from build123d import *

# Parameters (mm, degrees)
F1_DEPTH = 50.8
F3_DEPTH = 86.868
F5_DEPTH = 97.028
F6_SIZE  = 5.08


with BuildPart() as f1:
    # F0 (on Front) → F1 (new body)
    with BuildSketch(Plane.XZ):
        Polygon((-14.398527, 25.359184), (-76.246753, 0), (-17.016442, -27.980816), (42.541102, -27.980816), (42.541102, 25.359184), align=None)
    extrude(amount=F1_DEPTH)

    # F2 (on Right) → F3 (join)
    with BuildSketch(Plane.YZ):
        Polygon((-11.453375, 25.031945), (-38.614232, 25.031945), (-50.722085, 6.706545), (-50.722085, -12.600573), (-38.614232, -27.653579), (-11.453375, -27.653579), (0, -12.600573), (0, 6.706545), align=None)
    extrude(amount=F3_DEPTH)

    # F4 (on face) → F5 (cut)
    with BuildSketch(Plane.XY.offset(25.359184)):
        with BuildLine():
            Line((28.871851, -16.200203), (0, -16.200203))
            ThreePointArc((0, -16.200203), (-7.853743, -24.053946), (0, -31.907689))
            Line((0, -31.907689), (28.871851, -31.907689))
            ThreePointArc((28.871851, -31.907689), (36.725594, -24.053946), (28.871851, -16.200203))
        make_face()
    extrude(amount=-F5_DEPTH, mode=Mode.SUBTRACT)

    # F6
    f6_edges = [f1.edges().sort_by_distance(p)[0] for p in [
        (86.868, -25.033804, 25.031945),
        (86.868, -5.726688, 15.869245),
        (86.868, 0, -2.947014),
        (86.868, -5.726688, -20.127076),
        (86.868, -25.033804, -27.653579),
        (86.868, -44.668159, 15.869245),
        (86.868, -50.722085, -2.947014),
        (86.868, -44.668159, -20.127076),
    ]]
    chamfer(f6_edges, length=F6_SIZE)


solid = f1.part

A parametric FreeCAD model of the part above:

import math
import FreeCAD as App
import Part
import Sketcher

V = App.Vector
Q = App.Units.Quantity


def edges_at(feature, points):
    """Names of the edges that pass closest to the given points."""
    edges = feature.Shape.Edges
    near = lambda p: min(range(len(edges)), key=lambda i: edges[i].distToShape(Part.Vertex(*p))[0])
    return sorted({f"Edge{near(p) + 1}" for p in points})

doc = App.newDocument("Part")
params = doc.addObject("Spreadsheet::Sheet", "Params")
for row, (alias, value) in enumerate([
    ("sketch1_height", "2.1 in"),
    ("pad1_length", "2 in"),
    ("pad2_length", "3.42 in"),
    ("pocket1_length", "3.82 in"),
    ("chamfer_size", "0.2 in"),
], start=1):
    params.set(f"A{row}", alias)
    params.set(f"B{row}", "=" + value)
    params.setAlias(f"B{row}", alias)

body = doc.addObject("PartDesign::Body", "Body")

# Sketch on XZ plane
sketch1 = body.newObject("Sketcher::SketchObject", "Sketch")
sketch1.AttachmentSupport = (doc.getObject("XZ_Plane"), [""])
sketch1.MapMode = "FlatFace"
sketch1.addGeometry(Part.LineSegment(V(-14, 25, 0), V(-76, 0, 0)), False)
sketch1.addGeometry(Part.LineSegment(V(-76, 0, 0), V(-17, -28, 0)), False)
sketch1.addGeometry(Part.LineSegment(V(-17, -28, 0), V(43, -28, 0)), False)
sketch1.addGeometry(Part.LineSegment(V(43, -28, 0), V(43, 25, 0)), False)
sketch1.addGeometry(Part.LineSegment(V(43, 25, 0), V(-14, 25, 0)), False)
sketch1.addConstraint(Sketcher.Constraint("Coincident", 0, 2, 1, 1))
sketch1.addConstraint(Sketcher.Constraint("Coincident", 1, 2, 2, 1))
sketch1.addConstraint(Sketcher.Constraint("Coincident", 2, 2, 3, 1))
sketch1.addConstraint(Sketcher.Constraint("Coincident", 3, 2, 4, 1))
sketch1.addConstraint(Sketcher.Constraint("Coincident", 4, 2, 0, 1))
sketch1.addConstraint(Sketcher.Constraint("Horizontal", 2))
sketch1.addConstraint(Sketcher.Constraint("Vertical", 3))
sketch1.addConstraint(Sketcher.Constraint("Horizontal", 4))
sketch1.addConstraint(Sketcher.Constraint("PointOnObject", 0, 2, -1))
sketch1.addConstraint(Sketcher.Constraint("DistanceY", 3, 1, 3, 2, Q("2.1 in")))
sketch1.addConstraint(Sketcher.Constraint("DistanceX", 4, 2, 4, 1, 56.939629))
sketch1.addConstraint(Sketcher.Constraint("Distance", 0, 66.845279))
sketch1.addConstraint(Sketcher.Constraint("DistanceX", 2, 1, 2, 2, 59.557544))
sketch1.addConstraint(Sketcher.Constraint("DistanceX", 0, 2, 1, 2, 59.230311))
sketch1.addConstraint(Sketcher.Constraint("DistanceX", 0, 2, -1, 1, 76.246753))
sketch1.setExpression("Constraints[9]", "Params.sketch1_height")
pad1 = body.newObject("PartDesign::Pad", "Pad")
pad1.Profile = sketch1
pad1.setExpression("Length", "Params.pad1_length")

# Sketch on YZ plane
sketch2 = body.newObject("Sketcher::SketchObject", "Sketch001")
sketch2.AttachmentSupport = (doc.getObject("YZ_Plane"), [""])
sketch2.MapMode = "FlatFace"
sketch2.addGeometry(Part.LineSegment(V(-11, 25, 0), V(-39, 25, 0)), False)
sketch2.addGeometry(Part.LineSegment(V(-39, 25, 0), V(-51, 7, 0)), False)
sketch2.addGeometry(Part.LineSegment(V(-51, 7, 0), V(-51, -13, 0)), False)
sketch2.addGeometry(Part.LineSegment(V(-51, -13, 0), V(-39, -28, 0)), False)
sketch2.addGeometry(Part.LineSegment(V(-39, -28, 0), V(-11, -28, 0)), False)
sketch2.addGeometry(Part.LineSegment(V(-11, -28, 0), V(0, -13, 0)), False)
sketch2.addGeometry(Part.LineSegment(V(0, -13, 0), V(0, 7, 0)), False)
sketch2.addGeometry(Part.LineSegment(V(0, 7, 0), V(-11, 25, 0)), False)
sketch2.addConstraint(Sketcher.Constraint("Coincident", 0, 2, 1, 1))
sketch2.addConstraint(Sketcher.Constraint("Coincident", 1, 2, 2, 1))
sketch2.addConstraint(Sketcher.Constraint("Coincident", 2, 2, 3, 1))
sketch2.addConstraint(Sketcher.Constraint("Coincident", 3, 2, 4, 1))
sketch2.addConstraint(Sketcher.Constraint("Coincident", 4, 2, 5, 1))
sketch2.addConstraint(Sketcher.Constraint("Coincident", 5, 2, 6, 1))
sketch2.addConstraint(Sketcher.Constraint("Coincident", 6, 2, 7, 1))
sketch2.addConstraint(Sketcher.Constraint("Coincident", 7, 2, 0, 1))
sketch2.addConstraint(Sketcher.Constraint("Horizontal", 0))
sketch2.addConstraint(Sketcher.Constraint("Vertical", 2))
sketch2.addConstraint(Sketcher.Constraint("Horizontal", 4))
sketch2.addConstraint(Sketcher.Constraint("Vertical", 6))
sketch2.addConstraint(Sketcher.Constraint("PointOnObject", 5, 2, -2))
sketch2.addConstraint(Sketcher.Constraint("Horizontal", 2, 2, 5, 2))
sketch2.addConstraint(Sketcher.Constraint("Horizontal", 1, 2, 6, 2))
sketch2.addConstraint(Sketcher.Constraint("Vertical", 0, 2, 3, 2))
sketch2.addConstraint(Sketcher.Constraint("Vertical", 4, 2, 7, 2))
sketch2.addConstraint(Sketcher.Constraint("DistanceY", 2, 2, 2, 1, 19.307118))
sketch2.addConstraint(Sketcher.Constraint("DistanceY", 1, 2, 0, 2, 18.3254))
sketch2.addConstraint(Sketcher.Constraint("Distance", 1, 21.96407))
sketch2.addConstraint(Sketcher.Constraint("DistanceX", 0, 2, 0, 1, 27.160857))
sketch2.addConstraint(Sketcher.Constraint("DistanceY", 3, 2, -1, 1, 27.653579))
sketch2.addConstraint(Sketcher.Constraint("Distance", 3, 19.318206))
sketch2.addConstraint(Sketcher.Constraint("Distance", 5, 18.914883))
pad2 = body.newObject("PartDesign::Pad", "Pad001")
pad2.Profile = sketch2
pad2.setExpression("Length", "Params.pad2_length")

# Sketch on XY plane
sketch3 = body.newObject("Sketcher::SketchObject", "Sketch002")
sketch3.AttachmentSupport = (doc.getObject("XY_Plane"), [""])
sketch3.MapMode = "FlatFace"
sketch3.AttachmentOffset = App.Placement(V(0, 0, 25.359184), App.Rotation())
sketch3.addGeometry(Part.LineSegment(V(29, -16, 0), V(0, -16, 0)), False)
sketch3.addGeometry(Part.ArcOfCircle(Part.Circle(V(0, -24, 0), V(0, 0, 1), 8), math.radians(90), math.radians(270)), False)
sketch3.addGeometry(Part.LineSegment(V(0, -32, 0), V(29, -32, 0)), False)
sketch3.addGeometry(Part.ArcOfCircle(Part.Circle(V(29, -24, 0), V(0, 0, 1), 8), math.radians(-90), math.radians(90)), False)
sketch3.addConstraint(Sketcher.Constraint("Tangent", 0, 2, 1, 1))
sketch3.addConstraint(Sketcher.Constraint("Tangent", 1, 2, 2, 1))
sketch3.addConstraint(Sketcher.Constraint("Tangent", 2, 2, 3, 1))
sketch3.addConstraint(Sketcher.Constraint("Tangent", 3, 2, 0, 1))
sketch3.addConstraint(Sketcher.Constraint("Horizontal", 0))
sketch3.addConstraint(Sketcher.Constraint("Horizontal", 2))
sketch3.addConstraint(Sketcher.Constraint("PointOnObject", 1, 3, -2))
sketch3.addConstraint(Sketcher.Constraint("Radius", 1, 7.853743))
sketch3.addConstraint(Sketcher.Constraint("DistanceX", 0, 2, 0, 1, 28.871851))
sketch3.addConstraint(Sketcher.Constraint("DistanceY", 1, 2, -1, 1, 31.907689))
pocket1 = body.newObject("PartDesign::Pocket", "Pocket")
pocket1.Profile = sketch3
pocket1.setExpression("Length", "Params.pocket1_length")
doc.recompute()

chamfer = body.newObject("PartDesign::Chamfer", "Chamfer")
chamfer.Base = (pocket1, edges_at(pocket1, [
    (86.868, -25.034, 25.032),
    (86.868, -5.727, 15.869),
    (86.868, 0, -2.947),
    (86.868, -5.727, -20.127),
    (86.868, -25.034, -27.654),
    (86.868, -44.668, 15.869),
    (86.868, -50.722, -2.947),
    (86.868, -44.668, -20.127),
]))
chamfer.setExpression("Size", "Params.chamfer_size")

doc.recompute()
